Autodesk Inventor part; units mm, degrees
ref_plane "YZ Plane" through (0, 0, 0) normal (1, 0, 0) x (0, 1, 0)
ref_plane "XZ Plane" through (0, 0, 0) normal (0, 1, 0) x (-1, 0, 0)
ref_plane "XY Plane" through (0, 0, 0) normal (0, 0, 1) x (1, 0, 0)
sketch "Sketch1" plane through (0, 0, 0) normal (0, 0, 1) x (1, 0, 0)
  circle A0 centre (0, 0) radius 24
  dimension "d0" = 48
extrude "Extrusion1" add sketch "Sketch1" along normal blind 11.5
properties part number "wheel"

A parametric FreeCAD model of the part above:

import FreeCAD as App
import Part
import Sketcher

V = App.Vector

doc = App.newDocument("Part")
body = doc.addObject("PartDesign::Body", "Body")

# Sketch on XY plane
sketch1 = doc.addObject("Sketcher::SketchObject", "Sketch")
body.addObject(sketch1)
sketch1.AttachmentSupport = (doc.XY_Plane, [""])
sketch1.MapMode = "FlatFace"
sketch1.addGeometry(Part.Circle(V(0, 0, 0), V(0, 0, 1), 24), False)
sketch1.addConstraint(Sketcher.Constraint("Coincident", 0, 3, -1, 1))
sketch1.addConstraint(Sketcher.Constraint("Diameter", 0, 48.0))
pad1 = doc.addObject("PartDesign::Pad", "Pad")
body.addObject(pad1)
pad1.Profile = sketch1
pad1.Length = 11.5

doc.recompute()
